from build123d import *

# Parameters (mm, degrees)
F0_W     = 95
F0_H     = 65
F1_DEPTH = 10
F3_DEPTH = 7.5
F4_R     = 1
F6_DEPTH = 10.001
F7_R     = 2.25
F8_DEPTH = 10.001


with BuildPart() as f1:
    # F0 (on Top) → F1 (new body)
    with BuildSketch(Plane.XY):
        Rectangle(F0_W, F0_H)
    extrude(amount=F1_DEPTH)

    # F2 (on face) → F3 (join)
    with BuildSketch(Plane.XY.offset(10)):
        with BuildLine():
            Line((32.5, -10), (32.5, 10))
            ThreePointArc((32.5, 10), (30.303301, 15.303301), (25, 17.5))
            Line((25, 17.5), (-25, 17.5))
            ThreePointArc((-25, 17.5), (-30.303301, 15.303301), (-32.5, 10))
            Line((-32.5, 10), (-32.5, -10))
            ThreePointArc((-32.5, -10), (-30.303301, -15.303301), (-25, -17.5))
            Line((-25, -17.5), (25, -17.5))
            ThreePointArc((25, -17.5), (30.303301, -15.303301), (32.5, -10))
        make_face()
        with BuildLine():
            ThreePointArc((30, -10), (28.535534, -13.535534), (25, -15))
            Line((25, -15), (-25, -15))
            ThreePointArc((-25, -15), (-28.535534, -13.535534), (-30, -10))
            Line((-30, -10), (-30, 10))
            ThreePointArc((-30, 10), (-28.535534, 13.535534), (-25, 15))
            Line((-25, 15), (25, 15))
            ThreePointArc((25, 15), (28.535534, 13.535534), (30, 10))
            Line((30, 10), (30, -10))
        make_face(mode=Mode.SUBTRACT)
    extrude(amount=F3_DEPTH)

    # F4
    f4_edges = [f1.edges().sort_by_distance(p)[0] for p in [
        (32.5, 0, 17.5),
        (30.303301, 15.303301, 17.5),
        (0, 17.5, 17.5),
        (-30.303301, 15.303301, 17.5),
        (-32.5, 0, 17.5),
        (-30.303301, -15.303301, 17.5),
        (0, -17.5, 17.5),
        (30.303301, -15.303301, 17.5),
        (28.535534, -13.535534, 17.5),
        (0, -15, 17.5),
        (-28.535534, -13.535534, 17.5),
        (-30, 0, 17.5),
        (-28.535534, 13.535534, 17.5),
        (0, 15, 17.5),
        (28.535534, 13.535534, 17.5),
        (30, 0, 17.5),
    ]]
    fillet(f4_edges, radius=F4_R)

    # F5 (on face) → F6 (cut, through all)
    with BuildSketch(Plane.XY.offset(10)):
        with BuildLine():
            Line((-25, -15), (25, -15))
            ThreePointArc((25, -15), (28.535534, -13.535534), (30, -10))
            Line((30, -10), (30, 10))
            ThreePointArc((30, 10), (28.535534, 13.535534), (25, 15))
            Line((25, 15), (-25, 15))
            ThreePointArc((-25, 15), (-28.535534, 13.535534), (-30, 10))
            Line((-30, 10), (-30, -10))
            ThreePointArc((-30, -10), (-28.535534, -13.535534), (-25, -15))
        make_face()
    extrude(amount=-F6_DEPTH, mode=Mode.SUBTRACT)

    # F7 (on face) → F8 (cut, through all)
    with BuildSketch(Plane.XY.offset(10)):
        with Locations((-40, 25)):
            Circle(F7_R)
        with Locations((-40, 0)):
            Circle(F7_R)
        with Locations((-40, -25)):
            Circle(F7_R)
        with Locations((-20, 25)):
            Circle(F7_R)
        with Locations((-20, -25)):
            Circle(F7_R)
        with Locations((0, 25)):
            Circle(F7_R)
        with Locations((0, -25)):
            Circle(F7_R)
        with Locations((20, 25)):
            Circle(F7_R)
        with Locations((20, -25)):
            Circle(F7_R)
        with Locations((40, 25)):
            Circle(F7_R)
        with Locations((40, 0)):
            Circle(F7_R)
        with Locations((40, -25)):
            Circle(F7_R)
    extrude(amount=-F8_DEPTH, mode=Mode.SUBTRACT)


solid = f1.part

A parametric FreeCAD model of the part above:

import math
import FreeCAD as App
import Part
import Sketcher
from FreeCAD import Vector


def edges_at(feature, points):
    """Names of the edges that pass closest to the given points."""
    edges = feature.Shape.Edges
    near = lambda p: min(range(len(edges)), key=lambda i: edges[i].distToShape(Part.Vertex(*p))[0])
    return sorted({f"Edge{near(p) + 1}" for p in points})

doc = App.newDocument("Part")
params = doc.addObject("Spreadsheet::Sheet", "Params")
for row, (alias, value) in enumerate([
    ("sketch1_width", "95 mm"),
    ("sketch1_height", "65 mm"),
    ("pad1_length", "10 mm"),
    ("sketch2_radius", "5 mm"),
    ("sketch2_radius2", "7.5 mm"),
    ("sketch2_width", "50 mm"),
    ("sketch2_height", "20 mm"),
    ("pad2_length", "7.5 mm"),
    ("fillet_radius", "1 mm"),
    ("sketch3_radius", "5 mm"),
    ("sketch3_width", "50 mm"),
    ("sketch3_height", "20 mm"),
    ("sketch4_diameter", "4.5 mm"),
], start=1):
    params.set(f"A{row}", alias)
    params.set(f"B{row}", "=" + value)
    params.setAlias(f"B{row}", alias)

body = doc.addObject("PartDesign::Body", "Body")

sketch1 = doc.addObject("Sketcher::SketchObject", "Sketch")
body.addObject(sketch1)
sketch1.AttachmentSupport = (doc.XY_Plane, [""])
sketch1.MapMode = "FlatFace"
sketch1.addGeometry([
    Part.LineSegment(Vector(-47.5, 32.5, 0), Vector(-47.5, -32.5, 0)),
    Part.LineSegment(Vector(-47.5, -32.5, 0), Vector(47.5, -32.5, 0)),
    Part.LineSegment(Vector(47.5, -32.5, 0), Vector(47.5, 32.5, 0)),
    Part.LineSegment(Vector(47.5, 32.5, 0), Vector(-47.5, 32.5, 0)),
], False)
sketch1.addConstraint([
    Sketcher.Constraint("Coincident", 0, 2, 1, 1),
    Sketcher.Constraint("Coincident", 1, 2, 2, 1),
    Sketcher.Constraint("Coincident", 2, 2, 3, 1),
    Sketcher.Constraint("Coincident", 3, 2, 0, 1),
    Sketcher.Constraint("Vertical", 0),
    Sketcher.Constraint("Horizontal", 1),
    Sketcher.Constraint("Vertical", 2),
    Sketcher.Constraint("Horizontal", 3),
    Sketcher.Constraint("Symmetric", 0, 2, 2, 2, -1, 1),
    Sketcher.Constraint("DistanceX", 1, 1, 1, 2, 95.0),
    Sketcher.Constraint("DistanceY", 0, 2, 0, 1, 65.0),
])
sketch1.setExpression("Constraints[9]", "Params.sketch1_width")
sketch1.setExpression("Constraints[10]", "Params.sketch1_height")
pad1 = doc.addObject("PartDesign::Pad", "Pad")
body.addObject(pad1)
pad1.Profile = sketch1
pad1.setExpression("Length", "Params.pad1_length")

sketch2 = doc.addObject("Sketcher::SketchObject", "Sketch001")
body.addObject(sketch2)
sketch2.AttachmentSupport = (doc.XY_Plane, [""])
sketch2.MapMode = "FlatFace"
sketch2.AttachmentOffset = App.Placement(Vector(0, 0, 10), App.Rotation())
sketch2.addGeometry([
    Part.LineSegment(Vector(32.5, -10, 0), Vector(32.5, 10, 0)),
    Part.ArcOfCircle(Part.Circle(Vector(25, 10, 0), Vector(0, 0, 1), 7.5), math.radians(-0.000004), math.radians(90.000004)),
    Part.LineSegment(Vector(25, 17.5, 0), Vector(-25, 17.5, 0)),
    Part.ArcOfCircle(Part.Circle(Vector(-25, 10, 0), Vector(0, 0, 1), 7.5), math.radians(89.999996), math.radians(180.000004)),
    Part.LineSegment(Vector(-32.5, 10, 0), Vector(-32.5, -10, 0)),
    Part.ArcOfCircle(Part.Circle(Vector(-25, -10, 0), Vector(0, 0, 1), 7.5), math.radians(179.999996), math.radians(270.000004)),
    Part.LineSegment(Vector(-25, -17.5, 0), Vector(25, -17.5, 0)),
    Part.ArcOfCircle(Part.Circle(Vector(25, -10, 0), Vector(0, 0, 1), 7.5), math.radians(-90.000004), math.radians(0.000004)),
    Part.LineSegment(Vector(30, 10, 0), Vector(30, -10, 0)),
    Part.ArcOfCircle(Part.Circle(Vector(25, -10, 0), Vector(0, 0, 1), 5), math.radians(-90.000004), math.radians(0.000004)),
    Part.LineSegment(Vector(25, -15, 0), Vector(-25, -15, 0)),
    Part.ArcOfCircle(Part.Circle(Vector(-25, -10, 0), Vector(0, 0, 1), 5), math.radians(179.999996), math.radians(270.000004)),
    Part.LineSegment(Vector(-30, -10, 0), Vector(-30, 10, 0)),
    Part.ArcOfCircle(Part.Circle(Vector(-25, 10, 0), Vector(0, 0, 1), 5), math.radians(89.999996), math.radians(180.000004)),
    Part.LineSegment(Vector(-25, 15, 0), Vector(25, 15, 0)),
    Part.ArcOfCircle(Part.Circle(Vector(25, 10, 0), Vector(0, 0, 1), 5), math.radians(-0.000004), math.radians(90.000004)),
], False)
sketch2.addConstraint([
    Sketcher.Constraint("Tangent", 0, 2, 1, 1),
    Sketcher.Constraint("Tangent", 1, 2, 2, 1),
    Sketcher.Constraint("Tangent", 2, 2, 3, 1),
    Sketcher.Constraint("Tangent", 3, 2, 4, 1),
    Sketcher.Constraint("Tangent", 4, 2, 5, 1),
    Sketcher.Constraint("Tangent", 5, 2, 6, 1),
    Sketcher.Constraint("Tangent", 6, 2, 7, 1),
    Sketcher.Constraint("Tangent", 7, 2, 0, 1),
    Sketcher.Constraint("Tangent", 8, 2, 9, 2),
    Sketcher.Constraint("Tangent", 9, 1, 10, 1),
    Sketcher.Constraint("Tangent", 10, 2, 11, 2),
    Sketcher.Constraint("Tangent", 11, 1, 12, 1),
    Sketcher.Constraint("Tangent", 12, 2, 13, 2),
    Sketcher.Constraint("Tangent", 13, 1, 14, 1),
    Sketcher.Constraint("Tangent", 14, 2, 15, 2),
    Sketcher.Constraint("Tangent", 15, 1, 8, 1),
    Sketcher.Constraint("Vertical", 0),
    Sketcher.Constraint("Horizontal", 2),
    Sketcher.Constraint("Vertical", 4),
    Sketcher.Constraint("Horizontal", 6),
    Sketcher.Constraint("Vertical", 8),
    Sketcher.Constraint("Horizontal", 10),
    Sketcher.Constraint("Vertical", 12),
    Sketcher.Constraint("Horizontal", 14),
    Sketcher.Constraint("Coincident", 9, 3, 7, 3),
    Sketcher.Constraint("Coincident", 11, 3, 5, 3),
    Sketcher.Constraint("Coincident", 13, 3, 3, 3),
    Sketcher.Constraint("Equal", 1, 3),
    Sketcher.Constraint("Equal", 3, 5),
    Sketcher.Constraint("Equal", 5, 7),
    Sketcher.Constraint("Equal", 13, 15),
    Sketcher.Constraint("Symmetric", 1, 3, 5, 3, -1, 1),
    Sketcher.Constraint("Radius", 9, 5.0),
    Sketcher.Constraint("Radius", 1, 7.5),
    Sketcher.Constraint("DistanceX", 2, 2, 2, 1, 50.0),
    Sketcher.Constraint("DistanceY", 0, 1, 0, 2, 20.0),
])
sketch2.setExpression("Constraints[32]", "Params.sketch2_radius")
sketch2.setExpression("Constraints[33]", "Params.sketch2_radius2")
sketch2.setExpression("Constraints[34]", "Params.sketch2_width")
sketch2.setExpression("Constraints[35]", "Params.sketch2_height")
pad2 = doc.addObject("PartDesign::Pad", "Pad001")
body.addObject(pad2)
pad2.Profile = sketch2
pad2.setExpression("Length", "Params.pad2_length")
doc.recompute()

fillet = doc.addObject("PartDesign::Fillet", "Fillet")
body.addObject(fillet)
fillet.Base = (pad2, edges_at(pad2, [
    (32.5, 0, 17.5),
    (30.303, 15.303, 17.5),
    (0, 17.5, 17.5),
    (-30.303, 15.303, 17.5),
    (-32.5, 0, 17.5),
    (-30.303, -15.303, 17.5),
    (0, -17.5, 17.5),
    (30.303, -15.303, 17.5),
    (28.536, -13.536, 17.5),
    (0, -15, 17.5),
    (-28.536, -13.536, 17.5),
    (-30, 0, 17.5),
    (-28.536, 13.536, 17.5),
    (0, 15, 17.5),
    (28.536, 13.536, 17.5),
    (30, 0, 17.5),
]))
fillet.setExpression("Radius", "Params.fillet_radius")

sketch3 = doc.addObject("Sketcher::SketchObject", "Sketch002")
body.addObject(sketch3)
sketch3.AttachmentSupport = (doc.XY_Plane, [""])
sketch3.MapMode = "FlatFace"
sketch3.AttachmentOffset = App.Placement(Vector(0, 0, 10), App.Rotation())
sketch3.addGeometry([
    Part.LineSegment(Vector(-25, -15, 0), Vector(25, -15, 0)),
    Part.ArcOfCircle(Part.Circle(Vector(25, -10, 0), Vector(0, 0, 1), 5), math.radians(-90.000004), math.radians(0.000004)),
    Part.LineSegment(Vector(30, -10, 0), Vector(30, 10, 0)),
    Part.ArcOfCircle(Part.Circle(Vector(25, 10, 0), Vector(0, 0, 1), 5), math.radians(-0.000004), math.radians(90.000004)),
    Part.LineSegment(Vector(25, 15, 0), Vector(-25, 15, 0)),
    Part.ArcOfCircle(Part.Circle(Vector(-25, 10, 0), Vector(0, 0, 1), 5), math.radians(89.999996), math.radians(180.000004)),
    Part.LineSegment(Vector(-30, 10, 0), Vector(-30, -10, 0)),
    Part.ArcOfCircle(Part.Circle(Vector(-25, -10, 0), Vector(0, 0, 1), 5), math.radians(179.999996), math.radians(270.000004)),
], False)
sketch3.addConstraint([
    Sketcher.Constraint("Tangent", 0, 2, 1, 1),
    Sketcher.Constraint("Tangent", 1, 2, 2, 1),
    Sketcher.Constraint("Tangent", 2, 2, 3, 1),
    Sketcher.Constraint("Tangent", 3, 2, 4, 1),
    Sketcher.Constraint("Tangent", 4, 2, 5, 1),
    Sketcher.Constraint("Tangent", 5, 2, 6, 1),
    Sketcher.Constraint("Tangent", 6, 2, 7, 1),
    Sketcher.Constraint("Tangent", 7, 2, 0, 1),
    Sketcher.Constraint("Horizontal", 0),
    Sketcher.Constraint("Vertical", 2),
    Sketcher.Constraint("Horizontal", 4),
    Sketcher.Constraint("Vertical", 6),
    Sketcher.Constraint("Equal", 1, 3),
    Sketcher.Constraint("Equal", 3, 5),
    Sketcher.Constraint("Equal", 5, 7),
    Sketcher.Constraint("Symmetric", 1, 3, 5, 3, -1, 1),
    Sketcher.Constraint("Radius", 1, 5.0),
    Sketcher.Constraint("DistanceX", 0, 1, 0, 2, 50.0),
    Sketcher.Constraint("DistanceY", 2, 1, 2, 2, 20.0),
])
sketch3.setExpression("Constraints[16]", "Params.sketch3_radius")
sketch3.setExpression("Constraints[17]", "Params.sketch3_width")
sketch3.setExpression("Constraints[18]", "Params.sketch3_height")
pocket1 = doc.addObject("PartDesign::Pocket", "Pocket")
body.addObject(pocket1)
pocket1.Profile = sketch3
pocket1.Type = "ThroughAll"

sketch4 = doc.addObject("Sketcher::SketchObject", "Sketch003")
body.addObject(sketch4)
sketch4.AttachmentSupport = (doc.XY_Plane, [""])
sketch4.MapMode = "FlatFace"
sketch4.AttachmentOffset = App.Placement(Vector(0, 0, 10), App.Rotation())
sketch4.addGeometry([
    Part.Circle(Vector(-40, 25, 0), Vector(0, 0, 1), 2.25),
    Part.Circle(Vector(-40, 0, 0), Vector(0, 0, 1), 2.25),
    Part.Circle(Vector(-40, -25, 0), Vector(0, 0, 1), 2.25),
    Part.Circle(Vector(-20, 25, 0), Vector(0, 0, 1), 2.25),
    Part.Circle(Vector(-20, -25, 0), Vector(0, 0, 1), 2.25),
    Part.Circle(Vector(0, 25, 0), Vector(0, 0, 1), 2.25),
    Part.Circle(Vector(0, -25, 0), Vector(0, 0, 1), 2.25),
    Part.Circle(Vector(20, 25, 0), Vector(0, 0, 1), 2.25),
    Part.Circle(Vector(20, -25, 0), Vector(0, 0, 1), 2.25),
    Part.Circle(Vector(40, 25, 0), Vector(0, 0, 1), 2.25),
    Part.Circle(Vector(40, 0, 0), Vector(0, 0, 1), 2.25),
    Part.Circle(Vector(40, -25, 0), Vector(0, 0, 1), 2.25),
], False)
sketch4.addConstraint([
    Sketcher.Constraint("Equal", 0, 1),
    Sketcher.Constraint("Equal", 1, 2),
    Sketcher.Constraint("Equal", 2, 3),
    Sketcher.Constraint("Equal", 3, 4),
    Sketcher.Constraint("Equal", 4, 5),
    Sketcher.Constraint("Equal", 5, 6),
    Sketcher.Constraint("Equal", 6, 7),
    Sketcher.Constraint("Equal", 7, 8),
    Sketcher.Constraint("Equal", 8, 9),
    Sketcher.Constraint("Equal", 9, 10),
    Sketcher.Constraint("Equal", 10, 11),
    Sketcher.Constraint("Symmetric", 5, 3, 6, 3, -1, 1),
    Sketcher.Constraint("Symmetric", 4, 3, 7, 3, -1, 1),
    Sketcher.Constraint("Symmetric", 3, 3, 8, 3, -1, 1),
    Sketcher.Constraint("Symmetric", 2, 3, 9, 3, -1, 1),
    Sketcher.Constraint("Symmetric", 1, 3, 10, 3, -1, 1),
    Sketcher.Constraint("Symmetric", 0, 3, 11, 3, -1, 1),
    Sketcher.Constraint("Symmetric", 3, 3, 7, 3, -2),
    Sketcher.Constraint("Symmetric", 0, 3, 9, 3, -2),
    Sketcher.Constraint("PointOnObject", 1, 3, -1),
    Sketcher.Constraint("PointOnObject", 5, 3, -2),
    Sketcher.Constraint("Horizontal", 0, 3, 3, 3),
    Sketcher.Constraint("Horizontal", 3, 3, 5, 3),
    Sketcher.Constraint("Vertical", 0, 3, 1, 3),
    Sketcher.Constraint("Diameter", 0, 4.5),
    Sketcher.Constraint("DistanceX", 0, 3, -1, 1, 40.0),
    Sketcher.Constraint("DistanceY", -1, 1, 0, 3, 25.0),
    Sketcher.Constraint("DistanceX", 3, 3, -1, 1, 20.0),
])
sketch4.setExpression("Constraints[24]", "Params.sketch4_diameter")
pocket2 = doc.addObject("PartDesign::Pocket", "Pocket001")
body.addObject(pocket2)
pocket2.Profile = sketch4
pocket2.Type = "ThroughAll"

doc.recompute()
